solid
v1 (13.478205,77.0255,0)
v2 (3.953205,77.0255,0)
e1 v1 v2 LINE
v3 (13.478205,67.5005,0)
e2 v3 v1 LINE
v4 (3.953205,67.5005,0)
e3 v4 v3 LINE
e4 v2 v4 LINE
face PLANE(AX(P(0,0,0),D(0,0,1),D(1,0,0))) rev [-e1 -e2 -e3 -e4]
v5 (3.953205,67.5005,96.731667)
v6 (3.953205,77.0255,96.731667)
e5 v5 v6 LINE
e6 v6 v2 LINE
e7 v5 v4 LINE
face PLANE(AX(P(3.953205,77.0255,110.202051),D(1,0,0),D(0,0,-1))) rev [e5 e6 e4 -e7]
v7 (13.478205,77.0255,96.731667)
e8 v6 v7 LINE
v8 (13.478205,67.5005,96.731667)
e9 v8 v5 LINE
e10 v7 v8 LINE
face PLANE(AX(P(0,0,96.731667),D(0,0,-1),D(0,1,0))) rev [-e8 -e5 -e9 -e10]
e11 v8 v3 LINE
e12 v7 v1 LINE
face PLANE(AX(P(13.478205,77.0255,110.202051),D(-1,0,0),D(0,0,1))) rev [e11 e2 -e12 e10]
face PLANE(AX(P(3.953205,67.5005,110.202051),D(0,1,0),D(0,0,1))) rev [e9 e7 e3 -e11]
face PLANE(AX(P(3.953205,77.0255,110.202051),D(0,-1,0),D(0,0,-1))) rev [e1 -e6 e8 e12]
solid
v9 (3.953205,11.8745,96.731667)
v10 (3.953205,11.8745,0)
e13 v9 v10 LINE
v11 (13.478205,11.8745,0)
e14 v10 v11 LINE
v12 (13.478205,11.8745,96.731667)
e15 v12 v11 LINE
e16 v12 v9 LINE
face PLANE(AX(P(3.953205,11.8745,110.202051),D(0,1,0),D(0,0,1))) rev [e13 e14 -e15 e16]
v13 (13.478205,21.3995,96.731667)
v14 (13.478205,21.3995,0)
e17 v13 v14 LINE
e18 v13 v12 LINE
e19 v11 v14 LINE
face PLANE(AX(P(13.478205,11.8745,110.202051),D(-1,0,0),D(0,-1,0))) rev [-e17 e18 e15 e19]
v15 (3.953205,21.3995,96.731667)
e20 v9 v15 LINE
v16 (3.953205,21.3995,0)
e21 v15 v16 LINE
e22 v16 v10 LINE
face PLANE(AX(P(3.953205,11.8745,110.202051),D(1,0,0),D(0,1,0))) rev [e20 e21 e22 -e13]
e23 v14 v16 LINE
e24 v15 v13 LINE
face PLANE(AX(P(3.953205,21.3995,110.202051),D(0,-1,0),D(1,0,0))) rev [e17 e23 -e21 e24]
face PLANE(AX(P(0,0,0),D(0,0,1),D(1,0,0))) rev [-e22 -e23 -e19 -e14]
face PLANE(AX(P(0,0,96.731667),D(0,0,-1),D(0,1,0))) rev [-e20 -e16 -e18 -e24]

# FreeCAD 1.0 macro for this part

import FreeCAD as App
import Part
import Sketcher
from FreeCAD import Vector
Q = App.Units.Quantity


def add_polygon(sketch, points):
    """Adds a closed chain of lines whose ends are joined by coincident constraints."""
    first, n = sketch.GeometryCount, len(points)
    for a, b in zip(points, points[1:] + points[:1]):
        sketch.addGeometry(Part.LineSegment(App.Vector(*a, 0), App.Vector(*b, 0)), False)
    for i in range(n):
        sketch.addConstraint(Sketcher.Constraint("Coincident", first + i, 2, first + (i + 1) % n, 1))

doc = App.newDocument("Part")
body = doc.addObject("PartDesign::Body", "Body")

# Sketch on XY plane
sketch1 = body.newObject("Sketcher::SketchObject", "Sketch")
sketch1.AttachmentSupport = (doc.getObject("XY_Plane"), [""])
sketch1.MapMode = "FlatFace"
add_polygon(sketch1, [(4, 77), (4, 68), (13, 68), (13, 77)])  # lines 0-3
sketch1.addConstraint(Sketcher.Constraint("Vertical", 0))
sketch1.addConstraint(Sketcher.Constraint("Horizontal", 1))
sketch1.addConstraint(Sketcher.Constraint("Vertical", 2))
sketch1.addConstraint(Sketcher.Constraint("Horizontal", 3))
sketch1.addConstraint(Sketcher.Constraint("Equal", 3, 0))
sketch1.addConstraint(Sketcher.Constraint("DistanceX", 1, 1, 1, 2, Q("0.375 in")))
sketch1.addConstraint(Sketcher.Constraint("DistanceY", -1, 1, 0, 2, Q("2.6575 in")))
sketch1.addConstraint(Sketcher.Constraint("DistanceX", -1, 1, 0, 2, Q("3.953205 mm")))
pad1 = body.newObject("PartDesign::Pad", "Pad")
pad1.Profile = sketch1
pad1.Length = 96.731667
body2 = doc.addObject("PartDesign::Body", "Body001")

# Sketch on XY plane
sketch2 = body2.newObject("Sketcher::SketchObject", "Sketch001")
sketch2.AttachmentSupport = (doc.getObject("XY_Plane001"), [""])
sketch2.MapMode = "FlatFace"
add_polygon(sketch2, [(4, 21), (4, 12), (13, 12), (13, 21)])  # lines 0-3
sketch2.addConstraint(Sketcher.Constraint("Vertical", 0))
sketch2.addConstraint(Sketcher.Constraint("Horizontal", 1))
sketch2.addConstraint(Sketcher.Constraint("Vertical", 2))
sketch2.addConstraint(Sketcher.Constraint("Horizontal", 3))
sketch2.addConstraint(Sketcher.Constraint("Equal", 3, 0))
sketch2.addConstraint(Sketcher.Constraint("DistanceX", 1, 1, 1, 2, Q("0.375 in")))
sketch2.addConstraint(Sketcher.Constraint("DistanceY", -1, 1, 0, 2, Q("0.4675 in")))
sketch2.addConstraint(Sketcher.Constraint("DistanceX", -1, 1, 0, 2, Q("3.953205 mm")))
pad2 = body2.newObject("PartDesign::Pad", "Pad001")
pad2.Profile = sketch2
pad2.Length = 96.731667

doc.recompute()
